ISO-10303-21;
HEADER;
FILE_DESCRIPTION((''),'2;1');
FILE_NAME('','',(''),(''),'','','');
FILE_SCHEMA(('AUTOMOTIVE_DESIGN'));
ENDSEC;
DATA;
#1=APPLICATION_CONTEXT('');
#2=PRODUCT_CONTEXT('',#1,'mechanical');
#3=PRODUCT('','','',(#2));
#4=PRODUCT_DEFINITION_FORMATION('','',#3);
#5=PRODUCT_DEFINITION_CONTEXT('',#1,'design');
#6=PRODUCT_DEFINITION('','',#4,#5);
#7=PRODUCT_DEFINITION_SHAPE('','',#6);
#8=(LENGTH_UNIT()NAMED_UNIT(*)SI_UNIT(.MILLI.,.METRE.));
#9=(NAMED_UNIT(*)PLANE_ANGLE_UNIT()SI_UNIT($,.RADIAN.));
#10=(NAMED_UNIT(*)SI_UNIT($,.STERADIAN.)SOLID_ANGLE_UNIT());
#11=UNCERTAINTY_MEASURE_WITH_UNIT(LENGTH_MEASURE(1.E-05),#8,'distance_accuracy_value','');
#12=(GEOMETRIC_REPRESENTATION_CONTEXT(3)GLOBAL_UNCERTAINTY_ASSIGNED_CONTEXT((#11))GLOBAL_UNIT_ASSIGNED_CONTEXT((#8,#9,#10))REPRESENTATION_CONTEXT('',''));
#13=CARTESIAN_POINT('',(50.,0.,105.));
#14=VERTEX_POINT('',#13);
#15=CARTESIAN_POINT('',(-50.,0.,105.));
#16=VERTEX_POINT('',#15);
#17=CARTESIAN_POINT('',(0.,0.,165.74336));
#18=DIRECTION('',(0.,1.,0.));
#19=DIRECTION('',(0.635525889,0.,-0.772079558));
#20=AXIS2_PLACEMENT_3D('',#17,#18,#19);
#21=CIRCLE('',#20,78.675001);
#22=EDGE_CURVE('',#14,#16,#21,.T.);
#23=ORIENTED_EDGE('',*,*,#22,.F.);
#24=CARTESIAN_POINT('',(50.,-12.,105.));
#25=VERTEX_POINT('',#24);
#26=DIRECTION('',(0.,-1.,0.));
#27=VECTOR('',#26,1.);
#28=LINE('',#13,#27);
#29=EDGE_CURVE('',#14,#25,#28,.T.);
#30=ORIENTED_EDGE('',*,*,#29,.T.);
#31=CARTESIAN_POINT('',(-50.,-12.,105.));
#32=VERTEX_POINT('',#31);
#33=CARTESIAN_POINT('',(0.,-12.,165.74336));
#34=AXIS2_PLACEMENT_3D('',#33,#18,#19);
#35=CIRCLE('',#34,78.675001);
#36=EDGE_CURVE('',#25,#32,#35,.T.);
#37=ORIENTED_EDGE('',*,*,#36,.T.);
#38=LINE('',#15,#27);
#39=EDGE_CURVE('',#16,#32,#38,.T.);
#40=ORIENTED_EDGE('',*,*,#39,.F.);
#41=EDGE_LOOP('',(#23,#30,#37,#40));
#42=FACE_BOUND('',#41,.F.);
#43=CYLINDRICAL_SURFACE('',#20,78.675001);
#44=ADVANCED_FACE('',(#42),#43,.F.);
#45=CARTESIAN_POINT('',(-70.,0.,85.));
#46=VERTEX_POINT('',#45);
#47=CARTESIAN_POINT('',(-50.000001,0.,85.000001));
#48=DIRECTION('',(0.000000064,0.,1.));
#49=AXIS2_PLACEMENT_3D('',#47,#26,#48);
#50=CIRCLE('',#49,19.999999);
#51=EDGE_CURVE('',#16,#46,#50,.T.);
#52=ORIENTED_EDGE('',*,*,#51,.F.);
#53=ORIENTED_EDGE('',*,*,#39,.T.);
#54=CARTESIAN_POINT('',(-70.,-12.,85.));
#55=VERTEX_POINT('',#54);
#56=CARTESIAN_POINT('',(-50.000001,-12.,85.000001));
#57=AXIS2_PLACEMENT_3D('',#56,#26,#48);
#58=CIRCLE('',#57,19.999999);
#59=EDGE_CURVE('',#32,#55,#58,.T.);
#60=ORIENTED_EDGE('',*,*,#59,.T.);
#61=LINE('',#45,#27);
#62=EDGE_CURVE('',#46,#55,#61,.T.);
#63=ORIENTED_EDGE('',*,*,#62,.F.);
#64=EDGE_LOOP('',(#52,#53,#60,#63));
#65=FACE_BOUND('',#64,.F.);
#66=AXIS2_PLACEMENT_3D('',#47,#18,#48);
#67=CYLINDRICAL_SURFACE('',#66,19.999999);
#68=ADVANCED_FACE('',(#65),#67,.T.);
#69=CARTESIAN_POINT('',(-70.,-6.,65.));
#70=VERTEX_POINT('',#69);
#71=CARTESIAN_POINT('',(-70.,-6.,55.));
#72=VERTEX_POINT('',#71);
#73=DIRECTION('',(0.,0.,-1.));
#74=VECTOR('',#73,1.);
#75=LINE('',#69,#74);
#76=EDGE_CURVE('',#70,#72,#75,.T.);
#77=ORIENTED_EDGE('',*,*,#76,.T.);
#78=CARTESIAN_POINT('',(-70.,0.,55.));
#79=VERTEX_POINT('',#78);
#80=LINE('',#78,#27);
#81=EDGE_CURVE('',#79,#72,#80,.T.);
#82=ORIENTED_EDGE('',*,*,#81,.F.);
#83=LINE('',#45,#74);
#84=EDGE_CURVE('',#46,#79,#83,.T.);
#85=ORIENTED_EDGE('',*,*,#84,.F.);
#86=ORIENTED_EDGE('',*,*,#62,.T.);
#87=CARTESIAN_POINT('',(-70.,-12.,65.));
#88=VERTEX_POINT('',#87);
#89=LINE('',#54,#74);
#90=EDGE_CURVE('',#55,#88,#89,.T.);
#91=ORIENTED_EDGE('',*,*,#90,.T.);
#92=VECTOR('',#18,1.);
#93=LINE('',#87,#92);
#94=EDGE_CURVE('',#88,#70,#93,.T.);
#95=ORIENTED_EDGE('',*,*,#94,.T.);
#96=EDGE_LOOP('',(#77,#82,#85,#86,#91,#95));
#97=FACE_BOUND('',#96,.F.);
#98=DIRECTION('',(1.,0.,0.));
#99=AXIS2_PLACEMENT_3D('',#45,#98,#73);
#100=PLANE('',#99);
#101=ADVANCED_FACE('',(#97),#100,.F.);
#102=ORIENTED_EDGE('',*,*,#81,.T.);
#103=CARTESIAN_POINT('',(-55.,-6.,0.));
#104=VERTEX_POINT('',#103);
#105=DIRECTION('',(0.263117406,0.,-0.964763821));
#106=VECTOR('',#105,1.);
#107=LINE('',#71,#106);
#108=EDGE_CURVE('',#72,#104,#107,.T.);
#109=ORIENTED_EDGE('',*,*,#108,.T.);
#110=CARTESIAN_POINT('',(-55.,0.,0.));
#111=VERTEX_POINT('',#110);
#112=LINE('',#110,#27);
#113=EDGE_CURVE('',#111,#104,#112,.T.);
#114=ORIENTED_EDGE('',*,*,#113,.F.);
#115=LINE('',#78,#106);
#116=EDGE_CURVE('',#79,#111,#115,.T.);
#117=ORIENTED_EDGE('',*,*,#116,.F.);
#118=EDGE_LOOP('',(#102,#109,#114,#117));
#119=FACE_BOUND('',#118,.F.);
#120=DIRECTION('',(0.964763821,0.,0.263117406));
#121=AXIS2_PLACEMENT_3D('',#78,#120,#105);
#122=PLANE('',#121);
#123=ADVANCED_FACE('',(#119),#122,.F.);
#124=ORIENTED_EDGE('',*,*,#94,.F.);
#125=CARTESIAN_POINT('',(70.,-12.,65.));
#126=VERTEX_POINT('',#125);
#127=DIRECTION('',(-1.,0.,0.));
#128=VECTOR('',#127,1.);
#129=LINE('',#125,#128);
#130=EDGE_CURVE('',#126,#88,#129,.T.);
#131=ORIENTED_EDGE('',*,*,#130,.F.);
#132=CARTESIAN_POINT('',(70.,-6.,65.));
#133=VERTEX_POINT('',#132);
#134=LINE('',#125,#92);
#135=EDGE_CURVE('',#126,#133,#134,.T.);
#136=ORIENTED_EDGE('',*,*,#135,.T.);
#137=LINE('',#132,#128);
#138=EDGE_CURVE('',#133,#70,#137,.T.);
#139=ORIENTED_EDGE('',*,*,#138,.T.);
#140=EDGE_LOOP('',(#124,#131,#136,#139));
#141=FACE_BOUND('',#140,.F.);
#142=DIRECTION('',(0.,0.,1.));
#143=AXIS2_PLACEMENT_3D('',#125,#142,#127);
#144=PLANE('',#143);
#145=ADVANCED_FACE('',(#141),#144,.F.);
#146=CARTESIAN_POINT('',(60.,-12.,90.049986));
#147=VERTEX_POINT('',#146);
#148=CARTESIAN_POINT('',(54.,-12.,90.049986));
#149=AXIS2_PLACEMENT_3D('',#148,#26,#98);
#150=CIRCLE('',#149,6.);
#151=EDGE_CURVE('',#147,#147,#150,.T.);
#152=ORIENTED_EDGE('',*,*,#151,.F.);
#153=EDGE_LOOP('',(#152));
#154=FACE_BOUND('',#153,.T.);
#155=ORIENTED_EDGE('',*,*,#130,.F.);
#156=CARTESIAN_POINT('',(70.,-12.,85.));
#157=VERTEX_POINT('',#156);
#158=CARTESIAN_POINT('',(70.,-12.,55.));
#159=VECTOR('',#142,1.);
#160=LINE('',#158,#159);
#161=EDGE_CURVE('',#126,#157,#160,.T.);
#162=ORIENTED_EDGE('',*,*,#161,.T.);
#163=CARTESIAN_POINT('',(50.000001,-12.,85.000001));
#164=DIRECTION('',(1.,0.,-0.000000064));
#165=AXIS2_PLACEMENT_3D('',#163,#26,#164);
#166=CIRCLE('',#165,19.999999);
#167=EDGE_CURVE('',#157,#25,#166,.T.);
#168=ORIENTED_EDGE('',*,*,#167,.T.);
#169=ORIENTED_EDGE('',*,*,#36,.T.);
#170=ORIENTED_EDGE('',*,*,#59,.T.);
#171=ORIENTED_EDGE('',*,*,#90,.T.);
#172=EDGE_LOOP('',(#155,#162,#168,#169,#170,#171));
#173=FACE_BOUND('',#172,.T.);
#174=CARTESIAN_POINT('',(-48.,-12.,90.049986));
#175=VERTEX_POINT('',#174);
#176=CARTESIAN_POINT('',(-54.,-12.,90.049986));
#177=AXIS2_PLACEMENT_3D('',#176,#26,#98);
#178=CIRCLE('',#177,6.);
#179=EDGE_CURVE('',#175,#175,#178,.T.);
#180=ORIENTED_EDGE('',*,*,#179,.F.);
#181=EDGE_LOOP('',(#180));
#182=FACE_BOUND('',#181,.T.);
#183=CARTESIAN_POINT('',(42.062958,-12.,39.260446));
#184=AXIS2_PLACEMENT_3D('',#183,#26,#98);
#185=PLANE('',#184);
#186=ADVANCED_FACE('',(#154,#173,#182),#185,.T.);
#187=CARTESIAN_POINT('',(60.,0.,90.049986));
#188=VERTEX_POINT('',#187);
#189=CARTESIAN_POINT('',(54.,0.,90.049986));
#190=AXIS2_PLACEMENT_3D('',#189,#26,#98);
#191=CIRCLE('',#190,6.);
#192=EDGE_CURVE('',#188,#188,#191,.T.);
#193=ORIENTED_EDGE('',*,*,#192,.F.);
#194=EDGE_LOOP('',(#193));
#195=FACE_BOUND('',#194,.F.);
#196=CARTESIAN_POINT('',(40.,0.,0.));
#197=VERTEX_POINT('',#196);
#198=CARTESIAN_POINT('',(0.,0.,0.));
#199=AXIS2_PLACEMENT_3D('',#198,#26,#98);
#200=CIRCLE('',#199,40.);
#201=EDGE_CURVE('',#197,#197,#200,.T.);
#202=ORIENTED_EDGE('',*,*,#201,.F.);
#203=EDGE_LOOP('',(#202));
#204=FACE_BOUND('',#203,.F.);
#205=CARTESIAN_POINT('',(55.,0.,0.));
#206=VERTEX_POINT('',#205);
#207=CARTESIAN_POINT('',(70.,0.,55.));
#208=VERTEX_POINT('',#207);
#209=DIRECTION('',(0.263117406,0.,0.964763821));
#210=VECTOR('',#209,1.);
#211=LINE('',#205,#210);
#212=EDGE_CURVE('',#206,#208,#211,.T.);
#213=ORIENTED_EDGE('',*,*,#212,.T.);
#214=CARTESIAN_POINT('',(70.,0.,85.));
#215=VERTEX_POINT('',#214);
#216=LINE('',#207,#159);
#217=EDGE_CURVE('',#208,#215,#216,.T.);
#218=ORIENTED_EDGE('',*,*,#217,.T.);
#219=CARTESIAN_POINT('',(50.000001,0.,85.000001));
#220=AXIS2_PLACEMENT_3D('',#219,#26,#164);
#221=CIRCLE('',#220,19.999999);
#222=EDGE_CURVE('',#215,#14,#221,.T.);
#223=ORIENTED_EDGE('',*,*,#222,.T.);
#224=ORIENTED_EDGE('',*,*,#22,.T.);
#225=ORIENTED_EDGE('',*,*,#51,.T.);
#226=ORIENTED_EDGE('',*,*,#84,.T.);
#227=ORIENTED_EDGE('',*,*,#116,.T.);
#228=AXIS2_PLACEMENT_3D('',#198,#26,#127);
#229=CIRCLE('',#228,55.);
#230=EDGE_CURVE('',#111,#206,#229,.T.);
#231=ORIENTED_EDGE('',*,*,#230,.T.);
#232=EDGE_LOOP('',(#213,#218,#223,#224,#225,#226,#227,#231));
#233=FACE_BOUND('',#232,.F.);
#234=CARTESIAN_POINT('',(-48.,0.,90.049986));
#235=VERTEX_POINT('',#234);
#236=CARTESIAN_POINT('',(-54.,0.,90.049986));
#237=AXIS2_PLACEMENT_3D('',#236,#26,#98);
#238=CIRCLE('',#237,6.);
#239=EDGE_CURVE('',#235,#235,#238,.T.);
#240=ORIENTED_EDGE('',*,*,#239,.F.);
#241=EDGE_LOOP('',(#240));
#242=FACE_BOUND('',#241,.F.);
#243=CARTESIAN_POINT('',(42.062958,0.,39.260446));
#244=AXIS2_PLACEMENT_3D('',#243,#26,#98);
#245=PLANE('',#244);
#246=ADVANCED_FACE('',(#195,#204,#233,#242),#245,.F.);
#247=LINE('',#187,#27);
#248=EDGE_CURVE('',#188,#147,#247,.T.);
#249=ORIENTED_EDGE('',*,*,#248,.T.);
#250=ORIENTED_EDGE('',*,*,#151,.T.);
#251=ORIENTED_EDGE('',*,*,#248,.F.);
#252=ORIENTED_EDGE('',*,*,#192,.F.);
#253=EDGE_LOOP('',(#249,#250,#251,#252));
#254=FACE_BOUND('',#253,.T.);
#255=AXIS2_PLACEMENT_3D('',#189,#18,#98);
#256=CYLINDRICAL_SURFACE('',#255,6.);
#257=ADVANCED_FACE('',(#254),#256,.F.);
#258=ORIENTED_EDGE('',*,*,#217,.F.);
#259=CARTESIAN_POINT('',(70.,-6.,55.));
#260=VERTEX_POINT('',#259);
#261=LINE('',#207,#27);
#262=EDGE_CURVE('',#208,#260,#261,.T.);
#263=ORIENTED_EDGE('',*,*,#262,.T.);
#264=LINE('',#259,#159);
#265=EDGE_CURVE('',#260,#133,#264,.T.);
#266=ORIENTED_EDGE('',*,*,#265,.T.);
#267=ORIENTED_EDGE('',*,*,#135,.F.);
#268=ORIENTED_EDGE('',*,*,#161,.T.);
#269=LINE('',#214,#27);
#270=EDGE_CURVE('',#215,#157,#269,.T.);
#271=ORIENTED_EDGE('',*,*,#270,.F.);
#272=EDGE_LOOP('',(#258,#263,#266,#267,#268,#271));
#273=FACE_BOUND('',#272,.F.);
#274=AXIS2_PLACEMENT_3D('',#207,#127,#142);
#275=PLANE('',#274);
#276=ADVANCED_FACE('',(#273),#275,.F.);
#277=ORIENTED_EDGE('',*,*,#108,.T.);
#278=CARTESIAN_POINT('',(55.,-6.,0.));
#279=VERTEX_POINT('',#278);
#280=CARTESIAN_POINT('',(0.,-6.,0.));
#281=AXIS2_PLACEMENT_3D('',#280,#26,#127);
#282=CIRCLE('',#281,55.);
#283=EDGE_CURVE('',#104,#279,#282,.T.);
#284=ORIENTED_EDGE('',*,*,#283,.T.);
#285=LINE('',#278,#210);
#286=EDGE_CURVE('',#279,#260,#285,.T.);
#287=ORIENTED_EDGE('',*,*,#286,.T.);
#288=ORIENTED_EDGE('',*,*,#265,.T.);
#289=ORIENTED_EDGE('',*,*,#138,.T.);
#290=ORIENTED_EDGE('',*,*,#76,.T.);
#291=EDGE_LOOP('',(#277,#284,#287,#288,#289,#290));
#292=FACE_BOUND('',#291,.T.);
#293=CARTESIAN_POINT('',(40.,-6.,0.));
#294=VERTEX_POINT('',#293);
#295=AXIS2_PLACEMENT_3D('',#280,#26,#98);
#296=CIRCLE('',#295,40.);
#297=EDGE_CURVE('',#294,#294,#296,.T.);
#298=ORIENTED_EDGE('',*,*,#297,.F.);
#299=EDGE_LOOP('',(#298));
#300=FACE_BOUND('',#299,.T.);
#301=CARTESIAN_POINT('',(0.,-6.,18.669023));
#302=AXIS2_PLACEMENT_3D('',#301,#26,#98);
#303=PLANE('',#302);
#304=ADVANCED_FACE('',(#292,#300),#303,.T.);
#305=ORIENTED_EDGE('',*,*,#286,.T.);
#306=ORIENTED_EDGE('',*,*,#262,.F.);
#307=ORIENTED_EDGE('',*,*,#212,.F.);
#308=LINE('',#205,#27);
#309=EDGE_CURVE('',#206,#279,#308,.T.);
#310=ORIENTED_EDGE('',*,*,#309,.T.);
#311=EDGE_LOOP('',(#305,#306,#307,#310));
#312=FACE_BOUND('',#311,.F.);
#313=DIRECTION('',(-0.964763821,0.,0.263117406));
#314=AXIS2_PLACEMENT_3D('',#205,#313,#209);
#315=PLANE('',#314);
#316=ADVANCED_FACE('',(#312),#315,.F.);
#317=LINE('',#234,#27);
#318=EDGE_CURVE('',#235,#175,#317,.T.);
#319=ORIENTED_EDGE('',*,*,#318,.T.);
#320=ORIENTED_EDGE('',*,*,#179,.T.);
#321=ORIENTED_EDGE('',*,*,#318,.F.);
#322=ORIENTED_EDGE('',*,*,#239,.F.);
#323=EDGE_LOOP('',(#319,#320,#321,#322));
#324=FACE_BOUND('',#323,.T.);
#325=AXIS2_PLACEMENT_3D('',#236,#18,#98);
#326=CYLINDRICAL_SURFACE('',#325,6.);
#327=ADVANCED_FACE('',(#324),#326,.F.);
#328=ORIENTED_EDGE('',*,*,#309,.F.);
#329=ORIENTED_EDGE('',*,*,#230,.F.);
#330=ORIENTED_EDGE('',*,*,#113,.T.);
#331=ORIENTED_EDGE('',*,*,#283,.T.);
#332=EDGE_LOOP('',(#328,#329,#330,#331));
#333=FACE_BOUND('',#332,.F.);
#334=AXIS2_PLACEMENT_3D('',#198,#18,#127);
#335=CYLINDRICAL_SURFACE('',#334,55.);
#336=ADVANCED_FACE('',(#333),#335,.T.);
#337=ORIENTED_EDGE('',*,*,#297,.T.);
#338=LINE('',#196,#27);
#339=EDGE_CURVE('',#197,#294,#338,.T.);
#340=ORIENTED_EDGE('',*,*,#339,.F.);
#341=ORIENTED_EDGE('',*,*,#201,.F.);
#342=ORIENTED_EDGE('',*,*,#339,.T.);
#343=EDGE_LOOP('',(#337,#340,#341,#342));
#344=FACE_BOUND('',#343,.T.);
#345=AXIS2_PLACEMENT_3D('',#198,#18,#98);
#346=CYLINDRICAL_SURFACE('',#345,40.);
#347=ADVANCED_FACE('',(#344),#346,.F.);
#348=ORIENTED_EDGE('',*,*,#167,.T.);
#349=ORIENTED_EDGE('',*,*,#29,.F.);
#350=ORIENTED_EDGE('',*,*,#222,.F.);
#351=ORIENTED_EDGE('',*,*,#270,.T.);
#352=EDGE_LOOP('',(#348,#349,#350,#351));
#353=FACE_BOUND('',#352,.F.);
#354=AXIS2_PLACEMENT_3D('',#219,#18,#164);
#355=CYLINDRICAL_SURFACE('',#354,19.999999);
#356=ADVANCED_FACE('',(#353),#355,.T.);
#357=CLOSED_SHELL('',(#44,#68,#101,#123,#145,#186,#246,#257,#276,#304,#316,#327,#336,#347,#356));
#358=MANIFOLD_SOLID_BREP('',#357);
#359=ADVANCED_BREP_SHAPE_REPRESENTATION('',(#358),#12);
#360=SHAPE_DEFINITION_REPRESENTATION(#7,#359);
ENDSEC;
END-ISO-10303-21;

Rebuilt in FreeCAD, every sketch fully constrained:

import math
import FreeCAD as App
import Part
import Sketcher

V = App.Vector
Q = App.Units.Quantity

doc = App.newDocument("Part")
body = doc.addObject("PartDesign::Body", "Body")

sketch1 = body.newObject("Sketcher::SketchObject", "Sketch")
sketch1.AttachmentSupport = (doc.getObject("XZ_Plane"), [""])
sketch1.MapMode = "FlatFace"
sketch1.addGeometry([
    Part.LineSegment(V(55, 0, 0), V(70, 55, 0)),
    Part.LineSegment(V(70, 55, 0), V(70, 85, 0)),
    Part.ArcOfCircle(Part.Circle(V(50, 85, 0), V(0, 0, 1), 20), math.radians(0), math.radians(90)),
    Part.ArcOfCircle(Part.Circle(V(0, 166, 0), V(0, 0, 1), 79), math.radians(-129), math.radians(-51)),
    Part.ArcOfCircle(Part.Circle(V(-50, 85, 0), V(0, 0, 1), 20), math.radians(90), math.radians(180)),
    Part.LineSegment(V(-70, 85, 0), V(-70, 55, 0)),
    Part.LineSegment(V(-70, 55, 0), V(-55, 0, 0)),
    Part.ArcOfCircle(Part.Circle(V(0, 0, 0), V(0, 0, 1), 55), math.radians(180), math.radians(360)),
    Part.Circle(V(0, 0, 0), V(0, 0, 1), 40),
    Part.Circle(V(-54, 90, 0), V(0, 0, 1), 6),
    Part.Circle(V(54, 90, 0), V(0, 0, 1), 6),
], False)
sketch1.addConstraint([
    Sketcher.Constraint("Coincident", 0, 2, 1, 1),
    Sketcher.Constraint("Tangent", 1, 2, 2, 1),
    Sketcher.Constraint("Coincident", 2, 2, 3, 2),
    Sketcher.Constraint("Coincident", 3, 1, 4, 1),
    Sketcher.Constraint("Tangent", 4, 2, 5, 1),
    Sketcher.Constraint("Coincident", 5, 2, 6, 1),
    Sketcher.Constraint("Coincident", 6, 2, 7, 1),
    Sketcher.Constraint("Coincident", 7, 2, 0, 1),
    Sketcher.Constraint("Vertical", 1),
    Sketcher.Constraint("Vertical", 5),
    Sketcher.Constraint("Coincident", 7, 3, -1, 1),
    Sketcher.Constraint("Coincident", 8, 3, -1, 1),
    Sketcher.Constraint("Equal", 2, 4),
    Sketcher.Constraint("Equal", 9, 10),
    Sketcher.Constraint("Symmetric", 2, 3, 4, 3, -2),
    Sketcher.Constraint("Symmetric", 9, 3, 10, 3, -2),
    Sketcher.Constraint("PointOnObject", 3, 3, -2),
    Sketcher.Constraint("PointOnObject", 6, 2, -1),
    Sketcher.Constraint("PointOnObject", 7, 2, -1),
    Sketcher.Constraint("Horizontal", 0, 2, 5, 2),
    Sketcher.Constraint("Vertical", 4, 3, 3, 1),
    Sketcher.Constraint("Diameter", 8, Q("80 mm")),
    Sketcher.Constraint("Diameter", 9, Q("12 mm")),
    Sketcher.Constraint("Radius", 2, Q("19.999999 mm")),
    Sketcher.Constraint("Radius", 7, Q("55 mm")),
    Sketcher.Constraint("DistanceY", 1, 1, 1, 2, Q("30 mm")),
    Sketcher.Constraint("DistanceX", -1, 1, 2, 3, Q("50.000001 mm")),
    Sketcher.Constraint("DistanceY", -1, 1, 2, 3, Q("85.000001 mm")),
    Sketcher.Constraint("DistanceX", 9, 3, -1, 1, Q("54 mm")),
    Sketcher.Constraint("Radius", 3, Q("78.675001 mm")),
    Sketcher.Constraint("DistanceY", -1, 1, 9, 3, Q("90.049986 mm")),
])
pad1 = body.newObject("PartDesign::Pad", "Pad")
pad1.Profile = sketch1
pad1.Length = 12

sketch2 = body.newObject("Sketcher::SketchObject", "Sketch001")
sketch2.AttachmentSupport = (doc.getObject("XZ_Plane"), [""])
sketch2.MapMode = "FlatFace"
sketch2.AttachmentOffset = App.Placement(V(0, 0, 12), App.Rotation())
sketch2.addGeometry([
    Part.LineSegment(V(-70, 55, 0), V(-55, 0, 0)),
    Part.ArcOfCircle(Part.Circle(V(0, 0, 0), V(0, 0, 1), 55), math.radians(180), math.radians(360)),
    Part.LineSegment(V(55, 0, 0), V(70, 55, 0)),
    Part.LineSegment(V(70, 55, 0), V(70, 65, 0)),
    Part.LineSegment(V(70, 65, 0), V(-70, 65, 0)),
    Part.LineSegment(V(-70, 65, 0), V(-70, 55, 0)),
    Part.Circle(V(0, 0, 0), V(0, 0, 1), 40),
], False)
sketch2.addConstraint([
    Sketcher.Constraint("Coincident", 0, 2, 1, 1),
    Sketcher.Constraint("Coincident", 1, 2, 2, 1),
    Sketcher.Constraint("Coincident", 2, 2, 3, 1),
    Sketcher.Constraint("Coincident", 3, 2, 4, 1),
    Sketcher.Constraint("Coincident", 4, 2, 5, 1),
    Sketcher.Constraint("Coincident", 5, 2, 0, 1),
    Sketcher.Constraint("Vertical", 3),
    Sketcher.Constraint("Horizontal", 4),
    Sketcher.Constraint("Vertical", 5),
    Sketcher.Constraint("Coincident", 1, 3, -1, 1),
    Sketcher.Constraint("Coincident", 6, 3, -1, 1),
    Sketcher.Constraint("Symmetric", 2, 2, 5, 2, -2),
    Sketcher.Constraint("PointOnObject", 0, 2, -1),
    Sketcher.Constraint("PointOnObject", 1, 2, -1),
    Sketcher.Constraint("Diameter", 6, Q("80 mm")),
    Sketcher.Constraint("Radius", 1, Q("55 mm")),
    Sketcher.Constraint("DistanceX", 4, 2, 4, 1, Q("140 mm")),
    Sketcher.Constraint("DistanceY", 3, 1, 3, 2, Q("10 mm")),
    Sketcher.Constraint("DistanceY", -1, 1, 2, 2, Q("55 mm")),
])
pocket1 = body.newObject("PartDesign::Pocket", "Pocket")
pocket1.Profile = sketch2
pocket1.Length = 6

doc.recompute()
